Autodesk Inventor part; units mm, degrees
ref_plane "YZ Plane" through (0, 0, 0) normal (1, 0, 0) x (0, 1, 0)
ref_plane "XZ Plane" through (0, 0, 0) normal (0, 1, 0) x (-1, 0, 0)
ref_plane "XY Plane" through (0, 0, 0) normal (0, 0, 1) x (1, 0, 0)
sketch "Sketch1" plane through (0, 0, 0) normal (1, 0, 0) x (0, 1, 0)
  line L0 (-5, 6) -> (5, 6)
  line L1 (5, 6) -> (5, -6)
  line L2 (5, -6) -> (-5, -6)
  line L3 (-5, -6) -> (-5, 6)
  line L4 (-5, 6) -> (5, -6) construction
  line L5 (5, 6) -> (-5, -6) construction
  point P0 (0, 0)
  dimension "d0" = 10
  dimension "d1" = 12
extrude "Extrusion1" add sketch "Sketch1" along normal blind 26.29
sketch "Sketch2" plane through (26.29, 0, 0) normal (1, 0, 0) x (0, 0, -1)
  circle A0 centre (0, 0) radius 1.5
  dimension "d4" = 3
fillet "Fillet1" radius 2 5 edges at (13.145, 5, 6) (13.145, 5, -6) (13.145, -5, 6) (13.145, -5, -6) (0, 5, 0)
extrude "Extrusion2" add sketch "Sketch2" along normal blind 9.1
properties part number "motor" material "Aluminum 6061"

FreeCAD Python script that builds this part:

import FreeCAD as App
import Part
import Sketcher

V = App.Vector


def edges_at(feature, points):
    """Names of the edges that pass closest to the given points."""
    edges = feature.Shape.Edges
    near = lambda p: min(range(len(edges)), key=lambda i: edges[i].distToShape(Part.Vertex(*p))[0])
    return sorted({f"Edge{near(p) + 1}" for p in points})


def add_polygon(sketch, points):
    """Adds a closed chain of lines whose ends are joined by coincident constraints."""
    first, n = sketch.GeometryCount, len(points)
    for a, b in zip(points, points[1:] + points[:1]):
        sketch.addGeometry(Part.LineSegment(App.Vector(*a, 0), App.Vector(*b, 0)), False)
    for i in range(n):
        sketch.addConstraint(Sketcher.Constraint("Coincident", first + i, 2, first + (i + 1) % n, 1))

doc = App.newDocument("Part")
body = doc.addObject("PartDesign::Body", "Body")

# Sketch on YZ plane
sketch1 = body.newObject("Sketcher::SketchObject", "Sketch")
sketch1.AttachmentSupport = (doc.getObject("YZ_Plane"), [""])
sketch1.MapMode = "FlatFace"
add_polygon(sketch1, [(5, 6), (-5, 6), (-5, -6), (5, -6)])  # lines 0-3
sketch1.addConstraint([
    Sketcher.Constraint("Horizontal", 0),
    Sketcher.Constraint("Vertical", 1),
    Sketcher.Constraint("Horizontal", 2),
    Sketcher.Constraint("Vertical", 3),
    Sketcher.Constraint("Symmetric", 0, 2, 2, 2, -1, 1),
    Sketcher.Constraint("DistanceX", 0, 2, 0, 1, 10.0),
    Sketcher.Constraint("DistanceY", 1, 2, 1, 1, 12.0),
])
pad1 = body.newObject("PartDesign::Pad", "Pad")
pad1.Profile = sketch1
pad1.Length = 26.29
doc.recompute()

fillet = body.newObject("PartDesign::Fillet", "Fillet")
fillet.Base = (pad1, edges_at(pad1, [
    (13.145, 5, 6),
    (13.145, 5, -6),
    (13.145, -5, 6),
    (13.145, -5, -6),
    (0, 5, 0),
]))
fillet.Radius = 2

# Sketch on YZ plane
sketch2 = body.newObject("Sketcher::SketchObject", "Sketch001")
sketch2.AttachmentSupport = (doc.getObject("YZ_Plane"), [""])
sketch2.MapMode = "FlatFace"
sketch2.AttachmentOffset = App.Placement(V(0, 0, 26.29), App.Rotation())
sketch2.addGeometry(Part.Circle(V(0, 0, 0), V(0, 0, 1), 1.5), False)
sketch2.addConstraint([
    Sketcher.Constraint("Coincident", 0, 3, -1, 1),
    Sketcher.Constraint("Diameter", 0, 3.0),
])
pad2 = body.newObject("PartDesign::Pad", "Pad001")
pad2.Profile = sketch2
pad2.Length = 9.1

doc.recompute()
